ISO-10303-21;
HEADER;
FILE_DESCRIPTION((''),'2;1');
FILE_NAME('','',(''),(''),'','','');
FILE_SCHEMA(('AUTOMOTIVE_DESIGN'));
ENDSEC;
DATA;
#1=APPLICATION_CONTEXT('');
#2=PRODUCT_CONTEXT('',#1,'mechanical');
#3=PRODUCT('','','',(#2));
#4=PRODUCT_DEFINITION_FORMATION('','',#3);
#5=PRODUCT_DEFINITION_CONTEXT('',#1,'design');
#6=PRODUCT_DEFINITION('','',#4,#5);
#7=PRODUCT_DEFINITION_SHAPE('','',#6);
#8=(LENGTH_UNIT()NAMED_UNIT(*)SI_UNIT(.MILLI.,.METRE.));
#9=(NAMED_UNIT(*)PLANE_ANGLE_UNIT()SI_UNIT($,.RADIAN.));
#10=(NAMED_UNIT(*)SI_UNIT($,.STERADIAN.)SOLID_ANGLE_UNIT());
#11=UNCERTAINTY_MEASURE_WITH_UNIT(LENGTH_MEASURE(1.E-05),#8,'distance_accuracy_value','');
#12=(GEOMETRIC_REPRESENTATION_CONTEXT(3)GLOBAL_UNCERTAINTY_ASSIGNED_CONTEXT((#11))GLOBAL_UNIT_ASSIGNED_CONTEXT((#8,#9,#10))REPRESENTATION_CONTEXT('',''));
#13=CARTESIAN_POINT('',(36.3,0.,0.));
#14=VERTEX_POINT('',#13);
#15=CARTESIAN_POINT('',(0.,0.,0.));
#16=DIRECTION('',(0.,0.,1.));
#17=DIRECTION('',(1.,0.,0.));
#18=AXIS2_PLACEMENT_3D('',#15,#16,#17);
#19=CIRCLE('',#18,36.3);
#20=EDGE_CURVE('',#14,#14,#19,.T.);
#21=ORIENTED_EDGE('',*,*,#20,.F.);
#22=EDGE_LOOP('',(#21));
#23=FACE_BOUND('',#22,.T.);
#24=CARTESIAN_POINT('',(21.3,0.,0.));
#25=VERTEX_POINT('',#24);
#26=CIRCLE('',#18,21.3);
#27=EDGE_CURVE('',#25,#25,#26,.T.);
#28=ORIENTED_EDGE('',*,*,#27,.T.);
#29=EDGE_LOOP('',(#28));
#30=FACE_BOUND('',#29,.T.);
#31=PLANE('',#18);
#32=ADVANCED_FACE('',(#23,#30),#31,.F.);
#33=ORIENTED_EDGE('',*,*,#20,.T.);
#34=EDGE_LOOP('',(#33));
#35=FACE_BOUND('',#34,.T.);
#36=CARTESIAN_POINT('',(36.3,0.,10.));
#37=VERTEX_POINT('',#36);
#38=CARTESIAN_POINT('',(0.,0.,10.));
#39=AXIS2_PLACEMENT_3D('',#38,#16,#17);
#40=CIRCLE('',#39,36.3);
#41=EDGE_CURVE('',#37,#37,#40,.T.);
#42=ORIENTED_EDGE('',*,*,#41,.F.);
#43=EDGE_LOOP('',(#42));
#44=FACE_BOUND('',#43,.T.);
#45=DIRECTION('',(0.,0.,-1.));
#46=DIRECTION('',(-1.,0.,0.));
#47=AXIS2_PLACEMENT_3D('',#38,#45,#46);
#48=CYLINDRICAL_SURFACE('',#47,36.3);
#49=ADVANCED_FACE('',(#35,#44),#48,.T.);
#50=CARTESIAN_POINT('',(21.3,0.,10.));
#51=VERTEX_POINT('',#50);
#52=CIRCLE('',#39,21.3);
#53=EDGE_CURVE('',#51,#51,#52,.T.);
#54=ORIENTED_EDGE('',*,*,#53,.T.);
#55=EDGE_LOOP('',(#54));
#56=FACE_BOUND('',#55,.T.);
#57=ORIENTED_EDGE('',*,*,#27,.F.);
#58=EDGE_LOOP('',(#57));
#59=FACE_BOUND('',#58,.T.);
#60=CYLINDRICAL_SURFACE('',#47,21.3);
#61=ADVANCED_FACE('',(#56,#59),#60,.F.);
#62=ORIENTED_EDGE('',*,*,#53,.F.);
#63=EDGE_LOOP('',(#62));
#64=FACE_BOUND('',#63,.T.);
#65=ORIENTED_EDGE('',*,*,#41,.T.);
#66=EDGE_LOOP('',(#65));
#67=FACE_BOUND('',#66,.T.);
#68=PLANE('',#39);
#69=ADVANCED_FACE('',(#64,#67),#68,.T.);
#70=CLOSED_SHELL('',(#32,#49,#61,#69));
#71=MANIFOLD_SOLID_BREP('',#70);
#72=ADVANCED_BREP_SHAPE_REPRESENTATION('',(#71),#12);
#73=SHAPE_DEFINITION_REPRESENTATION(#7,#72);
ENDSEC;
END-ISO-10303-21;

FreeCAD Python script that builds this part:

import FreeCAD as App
import Part
import Sketcher

doc = App.newDocument("Part")
params = doc.addObject("Spreadsheet::Sheet", "Params")
for row, (alias, value) in enumerate([
    ("sketch1_diameter", "72.6 mm"),
    ("sketch1_diameter2", "42.6 mm"),
    ("pad1_length", "10 mm"),
], start=1):
    params.set(f"A{row}", alias)
    params.set(f"B{row}", "=" + value)
    params.setAlias(f"B{row}", alias)

body = doc.addObject("PartDesign::Body", "Body")

# Sketch on XY plane
sketch1 = body.newObject("Sketcher::SketchObject", "Sketch")
sketch1.AttachmentSupport = (doc.getObject("XY_Plane"), [""])
sketch1.MapMode = "FlatFace"
sketch1.addGeometry([
    Part.Circle(App.Vector(0, 0, 0), App.Vector(0, 0, 1), 36),
    Part.Circle(App.Vector(0, 0, 0), App.Vector(0, 0, 1), 21),
], False)
sketch1.addConstraint([
    Sketcher.Constraint("Coincident", 0, 3, -1, 1),
    Sketcher.Constraint("Coincident", 1, 3, -1, 1),
    Sketcher.Constraint("Diameter", 0, 72.6),
    Sketcher.Constraint("Diameter", 1, 42.6),
])
sketch1.setExpression("Constraints[2]", "Params.sketch1_diameter")
sketch1.setExpression("Constraints[3]", "Params.sketch1_diameter2")
pad1 = body.newObject("PartDesign::Pad", "Pad")
pad1.Profile = sketch1
pad1.setExpression("Length", "Params.pad1_length")

doc.recompute()
